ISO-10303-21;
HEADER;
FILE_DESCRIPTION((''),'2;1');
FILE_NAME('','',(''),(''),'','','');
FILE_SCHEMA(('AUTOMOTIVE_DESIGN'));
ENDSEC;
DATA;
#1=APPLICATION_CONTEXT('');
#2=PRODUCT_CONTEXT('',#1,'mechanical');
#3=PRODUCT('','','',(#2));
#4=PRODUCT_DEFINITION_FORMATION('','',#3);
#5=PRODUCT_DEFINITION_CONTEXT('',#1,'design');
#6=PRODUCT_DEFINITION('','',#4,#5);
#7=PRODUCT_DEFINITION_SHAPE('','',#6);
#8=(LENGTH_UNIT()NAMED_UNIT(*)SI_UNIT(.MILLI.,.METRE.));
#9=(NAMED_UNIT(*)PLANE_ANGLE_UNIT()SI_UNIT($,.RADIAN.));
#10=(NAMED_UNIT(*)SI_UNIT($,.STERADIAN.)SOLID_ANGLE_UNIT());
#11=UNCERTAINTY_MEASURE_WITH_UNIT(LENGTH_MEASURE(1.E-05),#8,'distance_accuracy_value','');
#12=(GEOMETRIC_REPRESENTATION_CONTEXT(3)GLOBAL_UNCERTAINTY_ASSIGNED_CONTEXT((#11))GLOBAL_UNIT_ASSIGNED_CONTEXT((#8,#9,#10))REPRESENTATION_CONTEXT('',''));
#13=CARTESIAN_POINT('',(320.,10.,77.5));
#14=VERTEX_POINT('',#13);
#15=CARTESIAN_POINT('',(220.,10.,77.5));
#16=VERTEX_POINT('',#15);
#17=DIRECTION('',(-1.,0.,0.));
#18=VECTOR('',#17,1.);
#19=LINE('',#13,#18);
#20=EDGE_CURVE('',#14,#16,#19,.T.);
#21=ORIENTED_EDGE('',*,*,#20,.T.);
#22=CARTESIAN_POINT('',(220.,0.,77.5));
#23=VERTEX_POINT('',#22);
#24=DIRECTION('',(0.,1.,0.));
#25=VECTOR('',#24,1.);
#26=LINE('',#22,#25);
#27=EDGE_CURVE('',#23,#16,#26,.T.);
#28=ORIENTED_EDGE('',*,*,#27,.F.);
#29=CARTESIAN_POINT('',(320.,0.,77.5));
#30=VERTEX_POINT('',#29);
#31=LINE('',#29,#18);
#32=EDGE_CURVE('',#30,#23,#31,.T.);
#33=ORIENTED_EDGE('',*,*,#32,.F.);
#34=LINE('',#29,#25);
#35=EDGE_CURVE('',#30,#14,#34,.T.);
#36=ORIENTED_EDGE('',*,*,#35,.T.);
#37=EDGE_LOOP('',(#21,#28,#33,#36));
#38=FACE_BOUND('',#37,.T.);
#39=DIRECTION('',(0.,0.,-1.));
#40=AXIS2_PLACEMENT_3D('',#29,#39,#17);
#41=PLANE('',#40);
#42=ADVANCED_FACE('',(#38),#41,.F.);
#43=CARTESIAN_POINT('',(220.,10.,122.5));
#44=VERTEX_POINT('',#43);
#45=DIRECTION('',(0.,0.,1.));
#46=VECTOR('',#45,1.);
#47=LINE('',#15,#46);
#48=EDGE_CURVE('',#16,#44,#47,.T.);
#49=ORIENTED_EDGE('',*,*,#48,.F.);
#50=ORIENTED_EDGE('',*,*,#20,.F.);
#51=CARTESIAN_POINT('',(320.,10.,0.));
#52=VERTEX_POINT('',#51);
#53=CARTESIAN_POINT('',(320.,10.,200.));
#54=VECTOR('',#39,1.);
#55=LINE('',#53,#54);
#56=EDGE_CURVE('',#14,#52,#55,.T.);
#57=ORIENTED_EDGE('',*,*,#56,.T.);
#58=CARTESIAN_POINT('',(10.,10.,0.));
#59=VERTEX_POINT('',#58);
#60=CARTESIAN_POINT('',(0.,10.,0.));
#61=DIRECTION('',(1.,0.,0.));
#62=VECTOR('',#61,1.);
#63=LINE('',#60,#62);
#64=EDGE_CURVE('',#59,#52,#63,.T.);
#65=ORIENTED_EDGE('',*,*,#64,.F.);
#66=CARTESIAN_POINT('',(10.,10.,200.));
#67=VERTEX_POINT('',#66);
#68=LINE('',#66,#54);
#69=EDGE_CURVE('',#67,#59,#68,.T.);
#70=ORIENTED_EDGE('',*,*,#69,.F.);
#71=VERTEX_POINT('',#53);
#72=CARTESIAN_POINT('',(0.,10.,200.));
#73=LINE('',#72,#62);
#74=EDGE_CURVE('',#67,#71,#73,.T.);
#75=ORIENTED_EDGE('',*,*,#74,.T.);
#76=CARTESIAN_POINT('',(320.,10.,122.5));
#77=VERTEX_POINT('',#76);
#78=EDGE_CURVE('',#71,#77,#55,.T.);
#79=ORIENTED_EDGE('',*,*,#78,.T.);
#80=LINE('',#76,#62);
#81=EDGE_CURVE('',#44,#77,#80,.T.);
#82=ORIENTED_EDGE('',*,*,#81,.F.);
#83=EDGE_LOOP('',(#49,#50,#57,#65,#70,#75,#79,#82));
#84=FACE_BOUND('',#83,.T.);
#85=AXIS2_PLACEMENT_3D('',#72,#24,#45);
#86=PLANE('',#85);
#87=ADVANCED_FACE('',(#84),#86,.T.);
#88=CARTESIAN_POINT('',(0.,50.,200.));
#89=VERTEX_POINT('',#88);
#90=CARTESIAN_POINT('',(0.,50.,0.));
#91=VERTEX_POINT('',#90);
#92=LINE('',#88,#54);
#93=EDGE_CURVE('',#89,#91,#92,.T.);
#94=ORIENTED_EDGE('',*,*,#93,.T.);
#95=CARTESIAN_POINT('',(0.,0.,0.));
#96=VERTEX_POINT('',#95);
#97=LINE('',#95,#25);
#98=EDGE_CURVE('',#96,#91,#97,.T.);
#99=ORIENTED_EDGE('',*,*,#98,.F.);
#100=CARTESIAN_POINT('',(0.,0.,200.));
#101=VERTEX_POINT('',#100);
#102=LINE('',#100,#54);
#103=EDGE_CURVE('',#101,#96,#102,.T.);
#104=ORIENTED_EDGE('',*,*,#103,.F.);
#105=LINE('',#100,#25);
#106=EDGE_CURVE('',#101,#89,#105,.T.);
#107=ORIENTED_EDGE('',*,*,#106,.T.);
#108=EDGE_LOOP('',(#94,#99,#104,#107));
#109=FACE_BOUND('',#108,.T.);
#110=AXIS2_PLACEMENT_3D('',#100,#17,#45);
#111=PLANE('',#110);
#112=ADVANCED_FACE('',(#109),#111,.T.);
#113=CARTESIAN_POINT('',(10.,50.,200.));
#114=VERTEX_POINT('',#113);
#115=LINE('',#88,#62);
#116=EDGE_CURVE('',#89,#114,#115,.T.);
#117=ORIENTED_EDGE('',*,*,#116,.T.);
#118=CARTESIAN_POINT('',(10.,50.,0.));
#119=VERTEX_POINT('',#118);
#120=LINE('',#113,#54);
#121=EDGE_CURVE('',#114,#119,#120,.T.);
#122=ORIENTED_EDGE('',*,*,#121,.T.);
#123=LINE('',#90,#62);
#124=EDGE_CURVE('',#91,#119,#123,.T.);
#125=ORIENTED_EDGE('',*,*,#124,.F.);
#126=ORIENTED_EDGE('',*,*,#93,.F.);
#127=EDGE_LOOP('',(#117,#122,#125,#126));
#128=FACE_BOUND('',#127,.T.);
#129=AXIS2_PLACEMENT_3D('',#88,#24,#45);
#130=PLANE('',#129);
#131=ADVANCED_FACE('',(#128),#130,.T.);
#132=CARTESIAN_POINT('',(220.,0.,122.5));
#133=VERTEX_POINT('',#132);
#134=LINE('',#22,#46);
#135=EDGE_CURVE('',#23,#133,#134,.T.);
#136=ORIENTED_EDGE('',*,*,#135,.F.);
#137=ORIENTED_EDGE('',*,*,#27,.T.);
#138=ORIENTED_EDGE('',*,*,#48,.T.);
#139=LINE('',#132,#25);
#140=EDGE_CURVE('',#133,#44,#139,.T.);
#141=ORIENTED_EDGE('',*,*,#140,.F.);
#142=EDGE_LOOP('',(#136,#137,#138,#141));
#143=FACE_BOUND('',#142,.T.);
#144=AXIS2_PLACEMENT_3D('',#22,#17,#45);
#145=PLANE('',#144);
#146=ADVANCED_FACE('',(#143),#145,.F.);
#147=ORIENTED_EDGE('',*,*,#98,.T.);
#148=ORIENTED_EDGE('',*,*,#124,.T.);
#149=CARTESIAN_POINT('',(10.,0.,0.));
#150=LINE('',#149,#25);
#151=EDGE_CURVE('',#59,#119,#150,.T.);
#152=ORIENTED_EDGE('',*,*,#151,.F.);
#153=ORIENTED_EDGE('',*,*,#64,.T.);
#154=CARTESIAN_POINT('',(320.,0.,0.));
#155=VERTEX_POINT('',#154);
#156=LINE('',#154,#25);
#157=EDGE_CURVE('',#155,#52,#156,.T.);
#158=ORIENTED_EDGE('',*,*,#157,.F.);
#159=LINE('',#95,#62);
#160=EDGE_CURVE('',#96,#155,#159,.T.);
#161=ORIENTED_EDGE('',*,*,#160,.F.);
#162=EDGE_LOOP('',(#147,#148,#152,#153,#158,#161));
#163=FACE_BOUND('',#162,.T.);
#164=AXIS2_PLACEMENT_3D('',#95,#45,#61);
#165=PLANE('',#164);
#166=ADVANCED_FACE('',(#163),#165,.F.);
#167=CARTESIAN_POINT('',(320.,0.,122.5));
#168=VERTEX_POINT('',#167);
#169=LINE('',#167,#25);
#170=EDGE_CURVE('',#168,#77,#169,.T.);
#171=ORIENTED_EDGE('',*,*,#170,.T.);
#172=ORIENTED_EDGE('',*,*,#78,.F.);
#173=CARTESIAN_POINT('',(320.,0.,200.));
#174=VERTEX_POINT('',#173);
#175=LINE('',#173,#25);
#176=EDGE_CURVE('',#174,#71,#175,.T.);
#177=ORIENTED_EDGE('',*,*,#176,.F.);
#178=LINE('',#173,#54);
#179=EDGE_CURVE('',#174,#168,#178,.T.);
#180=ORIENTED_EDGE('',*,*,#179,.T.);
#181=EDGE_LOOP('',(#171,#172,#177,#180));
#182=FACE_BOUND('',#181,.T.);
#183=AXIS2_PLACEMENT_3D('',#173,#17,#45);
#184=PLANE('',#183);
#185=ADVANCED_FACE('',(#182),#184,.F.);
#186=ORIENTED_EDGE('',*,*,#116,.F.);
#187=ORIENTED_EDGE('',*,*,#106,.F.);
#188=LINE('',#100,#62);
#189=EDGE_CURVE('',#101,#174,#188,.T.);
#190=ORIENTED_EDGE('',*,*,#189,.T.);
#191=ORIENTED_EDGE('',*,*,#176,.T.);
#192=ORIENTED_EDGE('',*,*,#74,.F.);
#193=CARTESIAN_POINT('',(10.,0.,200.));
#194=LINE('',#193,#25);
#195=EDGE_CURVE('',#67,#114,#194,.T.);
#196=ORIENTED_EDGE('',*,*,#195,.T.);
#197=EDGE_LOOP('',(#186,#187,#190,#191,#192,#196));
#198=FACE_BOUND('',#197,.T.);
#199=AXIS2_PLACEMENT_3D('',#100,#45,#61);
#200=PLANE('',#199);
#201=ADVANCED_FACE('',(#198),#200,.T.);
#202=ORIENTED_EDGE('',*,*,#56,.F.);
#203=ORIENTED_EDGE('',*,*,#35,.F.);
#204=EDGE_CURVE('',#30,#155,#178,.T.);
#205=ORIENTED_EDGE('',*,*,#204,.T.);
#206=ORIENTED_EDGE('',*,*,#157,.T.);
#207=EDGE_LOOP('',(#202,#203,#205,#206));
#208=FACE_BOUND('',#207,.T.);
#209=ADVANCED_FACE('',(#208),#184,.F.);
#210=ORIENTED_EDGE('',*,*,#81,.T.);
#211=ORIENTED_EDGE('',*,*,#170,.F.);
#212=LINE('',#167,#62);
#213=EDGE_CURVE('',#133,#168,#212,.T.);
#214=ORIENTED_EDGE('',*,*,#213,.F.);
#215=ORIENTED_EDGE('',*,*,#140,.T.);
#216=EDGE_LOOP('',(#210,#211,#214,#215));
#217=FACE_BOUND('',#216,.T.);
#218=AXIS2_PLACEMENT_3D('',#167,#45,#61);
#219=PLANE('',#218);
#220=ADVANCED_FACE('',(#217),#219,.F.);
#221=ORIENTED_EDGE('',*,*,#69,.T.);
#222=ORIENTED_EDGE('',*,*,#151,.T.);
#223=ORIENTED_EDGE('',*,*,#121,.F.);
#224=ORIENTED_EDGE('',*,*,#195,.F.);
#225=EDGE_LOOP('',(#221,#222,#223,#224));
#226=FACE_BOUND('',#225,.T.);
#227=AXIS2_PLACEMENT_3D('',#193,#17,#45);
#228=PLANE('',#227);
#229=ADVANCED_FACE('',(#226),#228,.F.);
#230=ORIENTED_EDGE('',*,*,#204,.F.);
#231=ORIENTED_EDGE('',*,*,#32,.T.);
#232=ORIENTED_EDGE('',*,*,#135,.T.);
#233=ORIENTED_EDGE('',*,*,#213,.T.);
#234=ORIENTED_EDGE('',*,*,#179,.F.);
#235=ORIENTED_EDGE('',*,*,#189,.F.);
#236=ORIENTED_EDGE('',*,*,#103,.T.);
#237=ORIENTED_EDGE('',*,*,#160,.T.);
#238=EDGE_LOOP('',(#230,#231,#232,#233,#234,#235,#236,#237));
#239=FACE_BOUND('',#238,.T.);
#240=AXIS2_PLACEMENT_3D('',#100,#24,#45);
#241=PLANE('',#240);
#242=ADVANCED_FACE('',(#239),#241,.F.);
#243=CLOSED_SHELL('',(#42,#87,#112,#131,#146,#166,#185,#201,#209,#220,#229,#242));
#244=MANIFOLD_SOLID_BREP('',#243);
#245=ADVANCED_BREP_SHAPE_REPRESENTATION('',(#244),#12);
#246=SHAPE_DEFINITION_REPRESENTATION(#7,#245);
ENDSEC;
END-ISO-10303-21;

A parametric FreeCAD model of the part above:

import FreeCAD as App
import Part
import Sketcher

V = App.Vector
Q = App.Units.Quantity


def add_polygon(sketch, points):
    """Adds a closed chain of lines whose ends are joined by coincident constraints."""
    first, n = sketch.GeometryCount, len(points)
    for a, b in zip(points, points[1:] + points[:1]):
        sketch.addGeometry(Part.LineSegment(App.Vector(*a, 0), App.Vector(*b, 0)), False)
    for i in range(n):
        sketch.addConstraint(Sketcher.Constraint("Coincident", first + i, 2, first + (i + 1) % n, 1))

doc = App.newDocument("Part")
body = doc.addObject("PartDesign::Body", "Body")

# Sketch on XY plane
sketch1 = body.newObject("Sketcher::SketchObject", "Sketch")
sketch1.AttachmentSupport = (doc.getObject("XY_Plane"), [""])
sketch1.MapMode = "FlatFace"
add_polygon(sketch1, [(320, 0), (320, 10), (10, 10), (10, 50), (0, 50), (0, 0)])  # lines 0-5
sketch1.addConstraint(Sketcher.Constraint("Vertical", 0))
sketch1.addConstraint(Sketcher.Constraint("Horizontal", 1))
sketch1.addConstraint(Sketcher.Constraint("Vertical", 2))
sketch1.addConstraint(Sketcher.Constraint("Horizontal", 3))
sketch1.addConstraint(Sketcher.Constraint("Vertical", 4))
sketch1.addConstraint(Sketcher.Constraint("Horizontal", 5))
sketch1.addConstraint(Sketcher.Constraint("Coincident", 4, 2, -1, 1))
sketch1.addConstraint(Sketcher.Constraint("Equal", 3, 0))
sketch1.addConstraint(Sketcher.Constraint("DistanceX", 1, 2, 1, 1, Q("310 mm")))
sketch1.addConstraint(Sketcher.Constraint("DistanceX", 3, 2, 3, 1, Q("10 mm")))
sketch1.addConstraint(Sketcher.Constraint("DistanceY", 2, 1, 2, 2, Q("40 mm")))
pad1 = body.newObject("PartDesign::Pad", "Pad")
pad1.Profile = sketch1
pad1.Length = 200

# Sketch on XZ plane
sketch2 = body.newObject("Sketcher::SketchObject", "Sketch001")
sketch2.AttachmentSupport = (doc.getObject("XZ_Plane"), [""])
sketch2.MapMode = "FlatFace"
sketch2.AttachmentOffset = App.Placement(V(0, 0, -10), App.Rotation())
add_polygon(sketch2, [(220, 77.5), (220, 122.5), (320, 122.5), (320, 77.5)])  # lines 0-3
sketch2.addConstraint(Sketcher.Constraint("Vertical", 0))
sketch2.addConstraint(Sketcher.Constraint("Horizontal", 1))
sketch2.addConstraint(Sketcher.Constraint("Vertical", 2))
sketch2.addConstraint(Sketcher.Constraint("Horizontal", 3))
sketch2.addConstraint(Sketcher.Constraint("DistanceX", 1, 1, 1, 2, Q("100 mm")))
sketch2.addConstraint(Sketcher.Constraint("DistanceY", 0, 1, 0, 2, Q("45 mm")))
sketch2.addConstraint(Sketcher.Constraint("DistanceX", -1, 1, 0, 2, Q("220 mm")))
sketch2.addConstraint(Sketcher.Constraint("DistanceY", -1, 1, 0, 2, Q("122.5 mm")))
pocket1 = body.newObject("PartDesign::Pocket", "Pocket")
pocket1.Profile = sketch2
pocket1.Length = 10
pocket1.Reversed = True

doc.recompute()
